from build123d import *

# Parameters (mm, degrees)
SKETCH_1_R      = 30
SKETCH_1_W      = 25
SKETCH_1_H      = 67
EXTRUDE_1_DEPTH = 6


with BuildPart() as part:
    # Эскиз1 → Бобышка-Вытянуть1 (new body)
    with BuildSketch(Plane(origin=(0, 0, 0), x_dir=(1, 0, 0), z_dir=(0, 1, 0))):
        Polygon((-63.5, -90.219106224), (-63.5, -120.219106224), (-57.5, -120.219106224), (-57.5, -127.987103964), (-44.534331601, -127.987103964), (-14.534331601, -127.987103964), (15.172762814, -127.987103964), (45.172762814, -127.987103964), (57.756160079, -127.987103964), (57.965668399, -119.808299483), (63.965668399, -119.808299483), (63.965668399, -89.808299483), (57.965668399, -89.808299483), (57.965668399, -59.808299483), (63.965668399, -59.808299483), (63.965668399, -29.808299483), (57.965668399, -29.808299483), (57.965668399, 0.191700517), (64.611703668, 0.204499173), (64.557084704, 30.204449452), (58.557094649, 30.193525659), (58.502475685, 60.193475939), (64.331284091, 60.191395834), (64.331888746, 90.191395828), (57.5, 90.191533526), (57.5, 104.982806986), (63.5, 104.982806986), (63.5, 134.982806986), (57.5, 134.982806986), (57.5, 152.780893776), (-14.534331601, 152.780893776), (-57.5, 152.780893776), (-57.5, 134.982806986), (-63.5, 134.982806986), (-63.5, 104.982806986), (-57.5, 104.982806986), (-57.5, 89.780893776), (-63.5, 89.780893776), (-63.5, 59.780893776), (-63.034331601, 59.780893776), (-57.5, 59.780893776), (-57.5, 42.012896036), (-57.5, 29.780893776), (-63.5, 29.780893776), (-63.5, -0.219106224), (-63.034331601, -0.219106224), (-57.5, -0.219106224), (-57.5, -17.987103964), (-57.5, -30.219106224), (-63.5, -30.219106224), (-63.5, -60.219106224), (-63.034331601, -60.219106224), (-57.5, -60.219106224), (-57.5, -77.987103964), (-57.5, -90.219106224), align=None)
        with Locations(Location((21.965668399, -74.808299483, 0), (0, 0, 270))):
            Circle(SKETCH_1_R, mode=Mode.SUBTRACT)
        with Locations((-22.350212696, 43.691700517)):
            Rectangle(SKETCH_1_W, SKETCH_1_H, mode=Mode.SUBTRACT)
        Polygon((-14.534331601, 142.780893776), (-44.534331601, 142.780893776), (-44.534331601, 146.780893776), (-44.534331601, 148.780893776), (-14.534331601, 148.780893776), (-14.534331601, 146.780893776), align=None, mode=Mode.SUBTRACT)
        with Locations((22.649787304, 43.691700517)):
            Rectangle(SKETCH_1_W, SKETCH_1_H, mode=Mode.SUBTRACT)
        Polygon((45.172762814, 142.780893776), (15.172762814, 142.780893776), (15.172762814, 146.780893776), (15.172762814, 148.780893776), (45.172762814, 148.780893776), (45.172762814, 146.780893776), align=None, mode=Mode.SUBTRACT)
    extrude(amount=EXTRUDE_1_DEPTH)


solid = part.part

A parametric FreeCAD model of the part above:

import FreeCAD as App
import Part
import Sketcher

V = App.Vector
Q = App.Units.Quantity

doc = App.newDocument("Part")
params = doc.addObject("Spreadsheet::Sheet", "Params")
for row, (alias, value) in enumerate([
    ("sketch1_diameter", "60 mm"),
    ("sketch1_width", "6 mm"),
    ("sketch1_width2", "115 mm"),
    ("sketch1_width3", "25 mm"),
    ("sketch1_width4", "30 mm"),
    ("pad1_length", "6 mm"),
], start=1):
    params.set(f"A{row}", alias)
    params.set(f"B{row}", "=" + value)
    params.setAlias(f"B{row}", alias)

body = doc.addObject("PartDesign::Body", "Body")

# Sketch on XZ plane
sketch1 = body.newObject("Sketcher::SketchObject", "Sketch")
sketch1.AttachmentSupport = (doc.getObject("XZ_Plane"), [""])
sketch1.MapMode = "FlatFace"
sketch1.addGeometry(Part.LineSegment(V(-64, 90, 0), V(-64, 120, 0)), False)
sketch1.addGeometry(Part.LineSegment(V(-64, 120, 0), V(-58, 120, 0)), False)
sketch1.addGeometry(Part.LineSegment(V(-58, 120, 0), V(-58, 128, 0)), False)
sketch1.addGeometry(Part.LineSegment(V(-58, 128, 0), V(58, 128, 0)), False)
sketch1.addGeometry(Part.LineSegment(V(58, 128, 0), V(58, 120, 0)), False)
sketch1.addGeometry(Part.LineSegment(V(58, 120, 0), V(64, 120, 0)), False)
sketch1.addGeometry(Part.LineSegment(V(64, 120, 0), V(64, 90, 0)), False)
sketch1.addGeometry(Part.LineSegment(V(64, 90, 0), V(58, 90, 0)), False)
sketch1.addGeometry(Part.LineSegment(V(58, 90, 0), V(58, 60, 0)), False)
sketch1.addGeometry(Part.LineSegment(V(58, 60, 0), V(64, 60, 0)), False)
sketch1.addGeometry(Part.LineSegment(V(64, 60, 0), V(64, 30, 0)), False)
sketch1.addGeometry(Part.LineSegment(V(64, 30, 0), V(58, 30, 0)), False)
sketch1.addGeometry(Part.LineSegment(V(58, 30, 0), V(58, 0, 0)), False)
sketch1.addGeometry(Part.LineSegment(V(58, 0, 0), V(65, 0, 0)), False)
sketch1.addGeometry(Part.LineSegment(V(65, 0, 0), V(65, -30, 0)), False)
sketch1.addGeometry(Part.LineSegment(V(65, -30, 0), V(59, -30, 0)), False)
sketch1.addGeometry(Part.LineSegment(V(59, -30, 0), V(59, -60, 0)), False)
sketch1.addGeometry(Part.LineSegment(V(59, -60, 0), V(64, -60, 0)), False)
sketch1.addGeometry(Part.LineSegment(V(64, -60, 0), V(64, -90, 0)), False)
sketch1.addGeometry(Part.LineSegment(V(64, -90, 0), V(58, -90, 0)), False)
sketch1.addGeometry(Part.LineSegment(V(58, -90, 0), V(58, -105, 0)), False)
sketch1.addGeometry(Part.LineSegment(V(58, -105, 0), V(64, -105, 0)), False)
sketch1.addGeometry(Part.LineSegment(V(64, -105, 0), V(64, -135, 0)), False)
sketch1.addGeometry(Part.LineSegment(V(64, -135, 0), V(58, -135, 0)), False)
sketch1.addGeometry(Part.LineSegment(V(58, -135, 0), V(58, -153, 0)), False)
sketch1.addGeometry(Part.LineSegment(V(58, -153, 0), V(-58, -153, 0)), False)
sketch1.addGeometry(Part.LineSegment(V(-58, -153, 0), V(-58, -135, 0)), False)
sketch1.addGeometry(Part.LineSegment(V(-58, -135, 0), V(-64, -135, 0)), False)
sketch1.addGeometry(Part.LineSegment(V(-64, -135, 0), V(-64, -105, 0)), False)
sketch1.addGeometry(Part.LineSegment(V(-64, -105, 0), V(-58, -105, 0)), False)
sketch1.addGeometry(Part.LineSegment(V(-58, -105, 0), V(-58, -90, 0)), False)
sketch1.addGeometry(Part.LineSegment(V(-58, -90, 0), V(-64, -90, 0)), False)
sketch1.addGeometry(Part.LineSegment(V(-64, -90, 0), V(-64, -60, 0)), False)
sketch1.addGeometry(Part.LineSegment(V(-64, -60, 0), V(-58, -60, 0)), False)
sketch1.addGeometry(Part.LineSegment(V(-58, -60, 0), V(-58, -30, 0)), False)
sketch1.addGeometry(Part.LineSegment(V(-58, -30, 0), V(-64, -30, 0)), False)
sketch1.addGeometry(Part.LineSegment(V(-64, -30, 0), V(-64, 0, 0)), False)
sketch1.addGeometry(Part.LineSegment(V(-64, 0, 0), V(-58, 0, 0)), False)
sketch1.addGeometry(Part.LineSegment(V(-58, 0, 0), V(-58, 30, 0)), False)
sketch1.addGeometry(Part.LineSegment(V(-58, 30, 0), V(-64, 30, 0)), False)
sketch1.addGeometry(Part.LineSegment(V(-64, 30, 0), V(-64, 60, 0)), False)
sketch1.addGeometry(Part.LineSegment(V(-64, 60, 0), V(-58, 60, 0)), False)
sketch1.addGeometry(Part.LineSegment(V(-58, 60, 0), V(-58, 90, 0)), False)
sketch1.addGeometry(Part.LineSegment(V(-58, 90, 0), V(-64, 90, 0)), False)
sketch1.addGeometry(Part.Circle(V(22, 75, 0), V(0, 0, 1), 30), False)
sketch1.addGeometry(Part.LineSegment(V(-10, -10, 0), V(-35, -10, 0)), False)
sketch1.addGeometry(Part.LineSegment(V(-35, -10, 0), V(-35, -77, 0)), False)
sketch1.addGeometry(Part.LineSegment(V(-35, -77, 0), V(-10, -77, 0)), False)
sketch1.addGeometry(Part.LineSegment(V(-10, -77, 0), V(-10, -10, 0)), False)
sketch1.addGeometry(Part.LineSegment(V(-15, -149, 0), V(-15, -143, 0)), False)
sketch1.addGeometry(Part.LineSegment(V(-15, -143, 0), V(-45, -143, 0)), False)
sketch1.addGeometry(Part.LineSegment(V(-45, -143, 0), V(-45, -149, 0)), False)
sketch1.addGeometry(Part.LineSegment(V(-45, -149, 0), V(-15, -149, 0)), False)
sketch1.addGeometry(Part.LineSegment(V(35, -10, 0), V(10, -10, 0)), False)
sketch1.addGeometry(Part.LineSegment(V(10, -10, 0), V(10, -77, 0)), False)
sketch1.addGeometry(Part.LineSegment(V(10, -77, 0), V(35, -77, 0)), False)
sketch1.addGeometry(Part.LineSegment(V(35, -77, 0), V(35, -10, 0)), False)
sketch1.addGeometry(Part.LineSegment(V(45, -149, 0), V(45, -143, 0)), False)
sketch1.addGeometry(Part.LineSegment(V(45, -143, 0), V(15, -143, 0)), False)
sketch1.addGeometry(Part.LineSegment(V(15, -143, 0), V(15, -149, 0)), False)
sketch1.addGeometry(Part.LineSegment(V(15, -149, 0), V(45, -149, 0)), False)
sketch1.addConstraint(Sketcher.Constraint("Coincident", 0, 2, 1, 1))
sketch1.addConstraint(Sketcher.Constraint("Coincident", 1, 2, 2, 1))
sketch1.addConstraint(Sketcher.Constraint("Coincident", 2, 2, 3, 1))
sketch1.addConstraint(Sketcher.Constraint("Coincident", 3, 2, 4, 1))
sketch1.addConstraint(Sketcher.Constraint("Coincident", 4, 2, 5, 1))
sketch1.addConstraint(Sketcher.Constraint("Coincident", 5, 2, 6, 1))
sketch1.addConstraint(Sketcher.Constraint("Coincident", 6, 2, 7, 1))
sketch1.addConstraint(Sketcher.Constraint("Coincident", 7, 2, 8, 1))
sketch1.addConstraint(Sketcher.Constraint("Coincident", 8, 2, 9, 1))
sketch1.addConstraint(Sketcher.Constraint("Coincident", 9, 2, 10, 1))
sketch1.addConstraint(Sketcher.Constraint("Coincident", 10, 2, 11, 1))
sketch1.addConstraint(Sketcher.Constraint("Coincident", 11, 2, 12, 1))
sketch1.addConstraint(Sketcher.Constraint("Coincident", 12, 2, 13, 1))
sketch1.addConstraint(Sketcher.Constraint("Coincident", 13, 2, 14, 1))
sketch1.addConstraint(Sketcher.Constraint("Coincident", 14, 2, 15, 1))
sketch1.addConstraint(Sketcher.Constraint("Coincident", 15, 2, 16, 1))
sketch1.addConstraint(Sketcher.Constraint("Coincident", 16, 2, 17, 1))
sketch1.addConstraint(Sketcher.Constraint("Coincident", 17, 2, 18, 1))
sketch1.addConstraint(Sketcher.Constraint("Coincident", 18, 2, 19, 1))
sketch1.addConstraint(Sketcher.Constraint("Coincident", 19, 2, 20, 1))
sketch1.addConstraint(Sketcher.Constraint("Coincident", 20, 2, 21, 1))
sketch1.addConstraint(Sketcher.Constraint("Coincident", 21, 2, 22, 1))
sketch1.addConstraint(Sketcher.Constraint("Coincident", 22, 2, 23, 1))
sketch1.addConstraint(Sketcher.Constraint("Coincident", 23, 2, 24, 1))
sketch1.addConstraint(Sketcher.Constraint("Coincident", 24, 2, 25, 1))
sketch1.addConstraint(Sketcher.Constraint("Coincident", 25, 2, 26, 1))
sketch1.addConstraint(Sketcher.Constraint("Coincident", 26, 2, 27, 1))
sketch1.addConstraint(Sketcher.Constraint("Coincident", 27, 2, 28, 1))
sketch1.addConstraint(Sketcher.Constraint("Coincident", 28, 2, 29, 1))
sketch1.addConstraint(Sketcher.Constraint("Coincident", 29, 2, 30, 1))
sketch1.addConstraint(Sketcher.Constraint("Coincident", 30, 2, 31, 1))
sketch1.addConstraint(Sketcher.Constraint("Coincident", 31, 2, 32, 1))
sketch1.addConstraint(Sketcher.Constraint("Coincident", 32, 2, 33, 1))
sketch1.addConstraint(Sketcher.Constraint("Coincident", 33, 2, 34, 1))
sketch1.addConstraint(Sketcher.Constraint("Coincident", 34, 2, 35, 1))
sketch1.addConstraint(Sketcher.Constraint("Coincident", 35, 2, 36, 1))
sketch1.addConstraint(Sketcher.Constraint("Coincident", 36, 2, 37, 1))
sketch1.addConstraint(Sketcher.Constraint("Coincident", 37, 2, 38, 1))
sketch1.addConstraint(Sketcher.Constraint("Coincident", 38, 2, 39, 1))
sketch1.addConstraint(Sketcher.Constraint("Coincident", 39, 2, 40, 1))
sketch1.addConstraint(Sketcher.Constraint("Coincident", 40, 2, 41, 1))
sketch1.addConstraint(Sketcher.Constraint("Coincident", 41, 2, 42, 1))
sketch1.addConstraint(Sketcher.Constraint("Coincident", 42, 2, 43, 1))
sketch1.addConstraint(Sketcher.Constraint("Coincident", 43, 2, 0, 1))
sketch1.addConstraint(Sketcher.Constraint("Coincident", 45, 2, 46, 1))
sketch1.addConstraint(Sketcher.Constraint("Coincident", 46, 2, 47, 1))
sketch1.addConstraint(Sketcher.Constraint("Coincident", 47, 2, 48, 1))
sketch1.addConstraint(Sketcher.Constraint("Coincident", 48, 2, 45, 1))
sketch1.addConstraint(Sketcher.Constraint("Coincident", 49, 2, 50, 1))
sketch1.addConstraint(Sketcher.Constraint("Coincident", 50, 2, 51, 1))
sketch1.addConstraint(Sketcher.Constraint("Coincident", 51, 2, 52, 1))
sketch1.addConstraint(Sketcher.Constraint("Coincident", 52, 2, 49, 1))
sketch1.addConstraint(Sketcher.Constraint("Coincident", 53, 2, 54, 1))
sketch1.addConstraint(Sketcher.Constraint("Coincident", 54, 2, 55, 1))
sketch1.addConstraint(Sketcher.Constraint("Coincident", 55, 2, 56, 1))
sketch1.addConstraint(Sketcher.Constraint("Coincident", 56, 2, 53, 1))
sketch1.addConstraint(Sketcher.Constraint("Coincident", 57, 2, 58, 1))
sketch1.addConstraint(Sketcher.Constraint("Coincident", 58, 2, 59, 1))
sketch1.addConstraint(Sketcher.Constraint("Coincident", 59, 2, 60, 1))
sketch1.addConstraint(Sketcher.Constraint("Coincident", 60, 2, 57, 1))
sketch1.addConstraint(Sketcher.Constraint("Vertical", 0))
sketch1.addConstraint(Sketcher.Constraint("Horizontal", 1))
sketch1.addConstraint(Sketcher.Constraint("Vertical", 2))
sketch1.addConstraint(Sketcher.Constraint("Horizontal", 3))
sketch1.addConstraint(Sketcher.Constraint("Horizontal", 5))
sketch1.addConstraint(Sketcher.Constraint("Vertical", 6))
sketch1.addConstraint(Sketcher.Constraint("Horizontal", 7))
sketch1.addConstraint(Sketcher.Constraint("Vertical", 8))
sketch1.addConstraint(Sketcher.Constraint("Horizontal", 9))
sketch1.addConstraint(Sketcher.Constraint("Vertical", 10))
sketch1.addConstraint(Sketcher.Constraint("Horizontal", 11))
sketch1.addConstraint(Sketcher.Constraint("Vertical", 12))
sketch1.addConstraint(Sketcher.Constraint("Vertical", 20))
sketch1.addConstraint(Sketcher.Constraint("Horizontal", 21))
sketch1.addConstraint(Sketcher.Constraint("Vertical", 22))
sketch1.addConstraint(Sketcher.Constraint("Horizontal", 23))
sketch1.addConstraint(Sketcher.Constraint("Vertical", 24))
sketch1.addConstraint(Sketcher.Constraint("Horizontal", 25))
sketch1.addConstraint(Sketcher.Constraint("Vertical", 26))
sketch1.addConstraint(Sketcher.Constraint("Horizontal", 27))
sketch1.addConstraint(Sketcher.Constraint("Vertical", 28))
sketch1.addConstraint(Sketcher.Constraint("Horizontal", 29))
sketch1.addConstraint(Sketcher.Constraint("Vertical", 30))
sketch1.addConstraint(Sketcher.Constraint("Horizontal", 31))
sketch1.addConstraint(Sketcher.Constraint("Vertical", 32))
sketch1.addConstraint(Sketcher.Constraint("Horizontal", 33))
sketch1.addConstraint(Sketcher.Constraint("Vertical", 34))
sketch1.addConstraint(Sketcher.Constraint("Horizontal", 35))
sketch1.addConstraint(Sketcher.Constraint("Vertical", 36))
sketch1.addConstraint(Sketcher.Constraint("Horizontal", 37))
sketch1.addConstraint(Sketcher.Constraint("Vertical", 38))
sketch1.addConstraint(Sketcher.Constraint("Horizontal", 39))
sketch1.addConstraint(Sketcher.Constraint("Vertical", 40))
sketch1.addConstraint(Sketcher.Constraint("Horizontal", 41))
sketch1.addConstraint(Sketcher.Constraint("Vertical", 42))
sketch1.addConstraint(Sketcher.Constraint("Horizontal", 43))
sketch1.addConstraint(Sketcher.Constraint("Horizontal", 45))
sketch1.addConstraint(Sketcher.Constraint("Vertical", 46))
sketch1.addConstraint(Sketcher.Constraint("Horizontal", 47))
sketch1.addConstraint(Sketcher.Constraint("Vertical", 48))
sketch1.addConstraint(Sketcher.Constraint("Vertical", 49))
sketch1.addConstraint(Sketcher.Constraint("Horizontal", 50))
sketch1.addConstraint(Sketcher.Constraint("Vertical", 51))
sketch1.addConstraint(Sketcher.Constraint("Horizontal", 52))
sketch1.addConstraint(Sketcher.Constraint("Horizontal", 53))
sketch1.addConstraint(Sketcher.Constraint("Vertical", 54))
sketch1.addConstraint(Sketcher.Constraint("Horizontal", 55))
sketch1.addConstraint(Sketcher.Constraint("Vertical", 56))
sketch1.addConstraint(Sketcher.Constraint("Vertical", 57))
sketch1.addConstraint(Sketcher.Constraint("Horizontal", 58))
sketch1.addConstraint(Sketcher.Constraint("Vertical", 59))
sketch1.addConstraint(Sketcher.Constraint("Horizontal", 60))
sketch1.addConstraint(Sketcher.Constraint("Symmetric", 23, 2, 26, 2, -2))
sketch1.addConstraint(Sketcher.Constraint("Symmetric", 21, 2, 28, 2, -2))
sketch1.addConstraint(Sketcher.Constraint("Perpendicular", 14, 15))
sketch1.addConstraint(Sketcher.Constraint("Perpendicular", 15, 16))
sketch1.addConstraint(Sketcher.Constraint("Perpendicular", 18, 19))
sketch1.addConstraint(Sketcher.Constraint("Horizontal", 48, 2, 53, 2))
sketch1.addConstraint(Sketcher.Constraint("Horizontal", 47, 2, 54, 2))
sketch1.addConstraint(Sketcher.Constraint("Horizontal", 50, 2, 57, 2))
sketch1.addConstraint(Sketcher.Constraint("Horizontal", 52, 2, 59, 2))
sketch1.addConstraint(Sketcher.Constraint("Vertical", 4, 2, 7, 2))
sketch1.addConstraint(Sketcher.Constraint("Vertical", 6, 2, 9, 2))
sketch1.addConstraint(Sketcher.Constraint("Vertical", 8, 2, 11, 2))
sketch1.addConstraint(Sketcher.Constraint("Vertical", 20, 2, 23, 2))
sketch1.addConstraint(Sketcher.Constraint("Vertical", 2, 2, 25, 2))
sketch1.addConstraint(Sketcher.Constraint("Vertical", 0, 2, 27, 2))
sketch1.addConstraint(Sketcher.Constraint("Vertical", 26, 2, 29, 2))
sketch1.addConstraint(Sketcher.Constraint("Vertical", 28, 2, 31, 2))
sketch1.addConstraint(Sketcher.Constraint("Vertical", 30, 2, 33, 2))
sketch1.addConstraint(Sketcher.Constraint("Vertical", 32, 2, 35, 2))
sketch1.addConstraint(Sketcher.Constraint("Vertical", 34, 2, 37, 2))
sketch1.addConstraint(Sketcher.Constraint("Vertical", 36, 2, 39, 2))
sketch1.addConstraint(Sketcher.Constraint("Vertical", 38, 2, 41, 2))
sketch1.addConstraint(Sketcher.Constraint("Equal", 1, 5))
sketch1.addConstraint(Sketcher.Constraint("Equal", 47, 53))
sketch1.addConstraint(Sketcher.Constraint("Equal", 52, 58))
sketch1.addConstraint(Sketcher.Constraint("Equal", 60, 0))
sketch1.addConstraint(Sketcher.Constraint("Equal", 0, 6))
sketch1.addConstraint(Sketcher.Constraint("Equal", 6, 8))
sketch1.addConstraint(Sketcher.Constraint("Equal", 8, 10))
sketch1.addConstraint(Sketcher.Constraint("Equal", 10, 12))
sketch1.addConstraint(Sketcher.Constraint("Equal", 12, 22))
sketch1.addConstraint(Sketcher.Constraint("Equal", 28, 32))
sketch1.addConstraint(Sketcher.Constraint("Equal", 32, 34))
sketch1.addConstraint(Sketcher.Constraint("Equal", 34, 36))
sketch1.addConstraint(Sketcher.Constraint("Equal", 36, 38))
sketch1.addConstraint(Sketcher.Constraint("Equal", 38, 40))
sketch1.addConstraint(Sketcher.Constraint("Equal", 40, 42))
sketch1.addConstraint(Sketcher.Constraint("Equal", 43, 49))
sketch1.addConstraint(Sketcher.Constraint("Equal", 14, 16))
sketch1.addConstraint(Sketcher.Constraint("Equal", 16, 18))
sketch1.addConstraint(Sketcher.Constraint("Diameter", 44, Q("60 mm")))
sketch1.addConstraint(Sketcher.Constraint("DistanceX", 1, 1, 1, 2, Q("6 mm")))
sketch1.addConstraint(Sketcher.Constraint("DistanceX", 25, 2, 25, 1, Q("115 mm")))
sketch1.addConstraint(Sketcher.Constraint("DistanceX", 45, 2, 45, 1, Q("25 mm")))
sketch1.addConstraint(Sketcher.Constraint("DistanceX", 50, 2, 50, 1, Q("30 mm")))
sketch1.addConstraint(Sketcher.Constraint("DistanceY", 46, 2, 46, 1, Q("67 mm")))
sketch1.addConstraint(Sketcher.Constraint("Distance", 14, Q("30 mm")))
sketch1.addConstraint(Sketcher.Constraint("Distance", 15, Q("6 mm")))
sketch1.addConstraint(Sketcher.Constraint("DistanceX", 3, 1, 3, 2, Q("115.25616 mm")))
sketch1.addConstraint(Sketcher.Constraint("DistanceY", -1, 1, 44, 3, Q("74.808299 mm")))
sketch1.addConstraint(Sketcher.Constraint("DistanceY", -1, 1, 4, 2, Q("119.808299 mm")))
sketch1.addConstraint(Sketcher.Constraint("DistanceY", 13, 2, -1, 1, Q("0.204499 mm")))
sketch1.addConstraint(Sketcher.Constraint("DistanceY", 45, 2, -1, 1, Q("10.191701 mm")))
sketch1.addConstraint(Sketcher.Constraint("Distance", 17, Q("5.828809 mm")))
sketch1.addConstraint(Sketcher.Constraint("Distance", 19, Q("6.831889 mm")))
sketch1.addConstraint(Sketcher.Constraint("DistanceY", 2, 1, 2, 2, Q("7.767998 mm")))
sketch1.addConstraint(Sketcher.Constraint("DistanceY", 20, 2, 20, 1, Q("14.791273 mm")))
sketch1.addConstraint(Sketcher.Constraint("DistanceY", 24, 2, 24, 1, Q("17.798087 mm")))
sketch1.addConstraint(Sketcher.Constraint("DistanceY", 30, 1, 30, 2, Q("15.201913 mm")))
sketch1.addConstraint(Sketcher.Constraint("DistanceX", -1, 1, 44, 3, Q("21.965668 mm")))
sketch1.addConstraint(Sketcher.Constraint("DistanceX", -1, 1, 4, 2, Q("57.965668 mm")))
sketch1.addConstraint(Sketcher.Constraint("DistanceX", 49, 2, -1, 1, Q("14.534332 mm")))
sketch1.addConstraint(Sketcher.Constraint("Distance", 4, Q("8.181487 mm")))
sketch1.addConstraint(Sketcher.Constraint("Distance", 13, Q("6.646048 mm")))
sketch1.addConstraint(Sketcher.Constraint("DistanceX", -1, 1, 14, 2, Q("64.557085 mm")))
sketch1.addConstraint(Sketcher.Constraint("DistanceX", 45, 2, -1, 1, Q("34.850213 mm")))
sketch1.addConstraint(Sketcher.Constraint("DistanceY", 49, 2, -1, 1, Q("142.780894 mm")))
sketch1.addConstraint(Sketcher.Constraint("DistanceX", -1, 1, 53, 2, Q("10.149787 mm")))
sketch1.addConstraint(Sketcher.Constraint("DistanceX", -1, 1, 57, 2, Q("45.172763 mm")))
sketch1.setExpression("Constraints[152]", "Params.sketch1_diameter")
sketch1.setExpression("Constraints[153]", "Params.sketch1_width")
sketch1.setExpression("Constraints[154]", "Params.sketch1_width2")
sketch1.setExpression("Constraints[155]", "Params.sketch1_width3")
sketch1.setExpression("Constraints[156]", "Params.sketch1_width4")
pad1 = body.newObject("PartDesign::Pad", "Pad")
pad1.Profile = sketch1
pad1.setExpression("Length", "Params.pad1_length")
pad1.Reversed = True

doc.recompute()
